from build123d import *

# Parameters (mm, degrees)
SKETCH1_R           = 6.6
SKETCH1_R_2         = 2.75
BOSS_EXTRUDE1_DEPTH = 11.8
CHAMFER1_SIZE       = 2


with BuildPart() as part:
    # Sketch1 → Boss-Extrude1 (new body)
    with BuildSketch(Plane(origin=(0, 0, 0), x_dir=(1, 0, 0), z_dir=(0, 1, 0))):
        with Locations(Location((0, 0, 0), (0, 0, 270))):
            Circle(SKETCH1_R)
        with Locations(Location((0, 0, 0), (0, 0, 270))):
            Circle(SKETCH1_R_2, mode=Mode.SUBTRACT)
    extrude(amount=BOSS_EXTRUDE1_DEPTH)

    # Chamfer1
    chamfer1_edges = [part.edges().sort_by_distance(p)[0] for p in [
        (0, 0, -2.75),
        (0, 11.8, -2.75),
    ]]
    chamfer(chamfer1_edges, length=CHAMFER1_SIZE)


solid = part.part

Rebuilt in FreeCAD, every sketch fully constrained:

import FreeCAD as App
import Part
import Sketcher
from FreeCAD import Vector


def edges_at(feature, points):
    """Names of the edges that pass closest to the given points."""
    edges = feature.Shape.Edges
    near = lambda p: min(range(len(edges)), key=lambda i: edges[i].distToShape(Part.Vertex(*p))[0])
    return sorted({f"Edge{near(p) + 1}" for p in points})

doc = App.newDocument("Part")
body = doc.addObject("PartDesign::Body", "Body")

sketch1 = body.newObject("Sketcher::SketchObject", "Sketch")
sketch1.AttachmentSupport = (doc.getObject("XZ_Plane"), [""])
sketch1.MapMode = "FlatFace"
sketch1.addGeometry([
    Part.Circle(Vector(0, 0, 0), Vector(0, 0, 1), 6.6),
    Part.Circle(Vector(0, 0, 0), Vector(0, 0, 1), 2.8),
], False)
sketch1.addConstraint([
    Sketcher.Constraint("Coincident", 0, 3, -1, 1),
    Sketcher.Constraint("Coincident", 1, 3, -1, 1),
    Sketcher.Constraint("Diameter", 0, 13.2),
    Sketcher.Constraint("Diameter", 1, 5.5),
])
pad1 = body.newObject("PartDesign::Pad", "Pad")
pad1.Profile = sketch1
pad1.Length = 11.8
pad1.Reversed = True
doc.recompute()

chamfer = body.newObject("PartDesign::Chamfer", "Chamfer")
chamfer.Base = (pad1, edges_at(pad1, [(0, 0, -2.75), (0, 11.8, -2.75)]))
chamfer.Size = 2

doc.recompute()
